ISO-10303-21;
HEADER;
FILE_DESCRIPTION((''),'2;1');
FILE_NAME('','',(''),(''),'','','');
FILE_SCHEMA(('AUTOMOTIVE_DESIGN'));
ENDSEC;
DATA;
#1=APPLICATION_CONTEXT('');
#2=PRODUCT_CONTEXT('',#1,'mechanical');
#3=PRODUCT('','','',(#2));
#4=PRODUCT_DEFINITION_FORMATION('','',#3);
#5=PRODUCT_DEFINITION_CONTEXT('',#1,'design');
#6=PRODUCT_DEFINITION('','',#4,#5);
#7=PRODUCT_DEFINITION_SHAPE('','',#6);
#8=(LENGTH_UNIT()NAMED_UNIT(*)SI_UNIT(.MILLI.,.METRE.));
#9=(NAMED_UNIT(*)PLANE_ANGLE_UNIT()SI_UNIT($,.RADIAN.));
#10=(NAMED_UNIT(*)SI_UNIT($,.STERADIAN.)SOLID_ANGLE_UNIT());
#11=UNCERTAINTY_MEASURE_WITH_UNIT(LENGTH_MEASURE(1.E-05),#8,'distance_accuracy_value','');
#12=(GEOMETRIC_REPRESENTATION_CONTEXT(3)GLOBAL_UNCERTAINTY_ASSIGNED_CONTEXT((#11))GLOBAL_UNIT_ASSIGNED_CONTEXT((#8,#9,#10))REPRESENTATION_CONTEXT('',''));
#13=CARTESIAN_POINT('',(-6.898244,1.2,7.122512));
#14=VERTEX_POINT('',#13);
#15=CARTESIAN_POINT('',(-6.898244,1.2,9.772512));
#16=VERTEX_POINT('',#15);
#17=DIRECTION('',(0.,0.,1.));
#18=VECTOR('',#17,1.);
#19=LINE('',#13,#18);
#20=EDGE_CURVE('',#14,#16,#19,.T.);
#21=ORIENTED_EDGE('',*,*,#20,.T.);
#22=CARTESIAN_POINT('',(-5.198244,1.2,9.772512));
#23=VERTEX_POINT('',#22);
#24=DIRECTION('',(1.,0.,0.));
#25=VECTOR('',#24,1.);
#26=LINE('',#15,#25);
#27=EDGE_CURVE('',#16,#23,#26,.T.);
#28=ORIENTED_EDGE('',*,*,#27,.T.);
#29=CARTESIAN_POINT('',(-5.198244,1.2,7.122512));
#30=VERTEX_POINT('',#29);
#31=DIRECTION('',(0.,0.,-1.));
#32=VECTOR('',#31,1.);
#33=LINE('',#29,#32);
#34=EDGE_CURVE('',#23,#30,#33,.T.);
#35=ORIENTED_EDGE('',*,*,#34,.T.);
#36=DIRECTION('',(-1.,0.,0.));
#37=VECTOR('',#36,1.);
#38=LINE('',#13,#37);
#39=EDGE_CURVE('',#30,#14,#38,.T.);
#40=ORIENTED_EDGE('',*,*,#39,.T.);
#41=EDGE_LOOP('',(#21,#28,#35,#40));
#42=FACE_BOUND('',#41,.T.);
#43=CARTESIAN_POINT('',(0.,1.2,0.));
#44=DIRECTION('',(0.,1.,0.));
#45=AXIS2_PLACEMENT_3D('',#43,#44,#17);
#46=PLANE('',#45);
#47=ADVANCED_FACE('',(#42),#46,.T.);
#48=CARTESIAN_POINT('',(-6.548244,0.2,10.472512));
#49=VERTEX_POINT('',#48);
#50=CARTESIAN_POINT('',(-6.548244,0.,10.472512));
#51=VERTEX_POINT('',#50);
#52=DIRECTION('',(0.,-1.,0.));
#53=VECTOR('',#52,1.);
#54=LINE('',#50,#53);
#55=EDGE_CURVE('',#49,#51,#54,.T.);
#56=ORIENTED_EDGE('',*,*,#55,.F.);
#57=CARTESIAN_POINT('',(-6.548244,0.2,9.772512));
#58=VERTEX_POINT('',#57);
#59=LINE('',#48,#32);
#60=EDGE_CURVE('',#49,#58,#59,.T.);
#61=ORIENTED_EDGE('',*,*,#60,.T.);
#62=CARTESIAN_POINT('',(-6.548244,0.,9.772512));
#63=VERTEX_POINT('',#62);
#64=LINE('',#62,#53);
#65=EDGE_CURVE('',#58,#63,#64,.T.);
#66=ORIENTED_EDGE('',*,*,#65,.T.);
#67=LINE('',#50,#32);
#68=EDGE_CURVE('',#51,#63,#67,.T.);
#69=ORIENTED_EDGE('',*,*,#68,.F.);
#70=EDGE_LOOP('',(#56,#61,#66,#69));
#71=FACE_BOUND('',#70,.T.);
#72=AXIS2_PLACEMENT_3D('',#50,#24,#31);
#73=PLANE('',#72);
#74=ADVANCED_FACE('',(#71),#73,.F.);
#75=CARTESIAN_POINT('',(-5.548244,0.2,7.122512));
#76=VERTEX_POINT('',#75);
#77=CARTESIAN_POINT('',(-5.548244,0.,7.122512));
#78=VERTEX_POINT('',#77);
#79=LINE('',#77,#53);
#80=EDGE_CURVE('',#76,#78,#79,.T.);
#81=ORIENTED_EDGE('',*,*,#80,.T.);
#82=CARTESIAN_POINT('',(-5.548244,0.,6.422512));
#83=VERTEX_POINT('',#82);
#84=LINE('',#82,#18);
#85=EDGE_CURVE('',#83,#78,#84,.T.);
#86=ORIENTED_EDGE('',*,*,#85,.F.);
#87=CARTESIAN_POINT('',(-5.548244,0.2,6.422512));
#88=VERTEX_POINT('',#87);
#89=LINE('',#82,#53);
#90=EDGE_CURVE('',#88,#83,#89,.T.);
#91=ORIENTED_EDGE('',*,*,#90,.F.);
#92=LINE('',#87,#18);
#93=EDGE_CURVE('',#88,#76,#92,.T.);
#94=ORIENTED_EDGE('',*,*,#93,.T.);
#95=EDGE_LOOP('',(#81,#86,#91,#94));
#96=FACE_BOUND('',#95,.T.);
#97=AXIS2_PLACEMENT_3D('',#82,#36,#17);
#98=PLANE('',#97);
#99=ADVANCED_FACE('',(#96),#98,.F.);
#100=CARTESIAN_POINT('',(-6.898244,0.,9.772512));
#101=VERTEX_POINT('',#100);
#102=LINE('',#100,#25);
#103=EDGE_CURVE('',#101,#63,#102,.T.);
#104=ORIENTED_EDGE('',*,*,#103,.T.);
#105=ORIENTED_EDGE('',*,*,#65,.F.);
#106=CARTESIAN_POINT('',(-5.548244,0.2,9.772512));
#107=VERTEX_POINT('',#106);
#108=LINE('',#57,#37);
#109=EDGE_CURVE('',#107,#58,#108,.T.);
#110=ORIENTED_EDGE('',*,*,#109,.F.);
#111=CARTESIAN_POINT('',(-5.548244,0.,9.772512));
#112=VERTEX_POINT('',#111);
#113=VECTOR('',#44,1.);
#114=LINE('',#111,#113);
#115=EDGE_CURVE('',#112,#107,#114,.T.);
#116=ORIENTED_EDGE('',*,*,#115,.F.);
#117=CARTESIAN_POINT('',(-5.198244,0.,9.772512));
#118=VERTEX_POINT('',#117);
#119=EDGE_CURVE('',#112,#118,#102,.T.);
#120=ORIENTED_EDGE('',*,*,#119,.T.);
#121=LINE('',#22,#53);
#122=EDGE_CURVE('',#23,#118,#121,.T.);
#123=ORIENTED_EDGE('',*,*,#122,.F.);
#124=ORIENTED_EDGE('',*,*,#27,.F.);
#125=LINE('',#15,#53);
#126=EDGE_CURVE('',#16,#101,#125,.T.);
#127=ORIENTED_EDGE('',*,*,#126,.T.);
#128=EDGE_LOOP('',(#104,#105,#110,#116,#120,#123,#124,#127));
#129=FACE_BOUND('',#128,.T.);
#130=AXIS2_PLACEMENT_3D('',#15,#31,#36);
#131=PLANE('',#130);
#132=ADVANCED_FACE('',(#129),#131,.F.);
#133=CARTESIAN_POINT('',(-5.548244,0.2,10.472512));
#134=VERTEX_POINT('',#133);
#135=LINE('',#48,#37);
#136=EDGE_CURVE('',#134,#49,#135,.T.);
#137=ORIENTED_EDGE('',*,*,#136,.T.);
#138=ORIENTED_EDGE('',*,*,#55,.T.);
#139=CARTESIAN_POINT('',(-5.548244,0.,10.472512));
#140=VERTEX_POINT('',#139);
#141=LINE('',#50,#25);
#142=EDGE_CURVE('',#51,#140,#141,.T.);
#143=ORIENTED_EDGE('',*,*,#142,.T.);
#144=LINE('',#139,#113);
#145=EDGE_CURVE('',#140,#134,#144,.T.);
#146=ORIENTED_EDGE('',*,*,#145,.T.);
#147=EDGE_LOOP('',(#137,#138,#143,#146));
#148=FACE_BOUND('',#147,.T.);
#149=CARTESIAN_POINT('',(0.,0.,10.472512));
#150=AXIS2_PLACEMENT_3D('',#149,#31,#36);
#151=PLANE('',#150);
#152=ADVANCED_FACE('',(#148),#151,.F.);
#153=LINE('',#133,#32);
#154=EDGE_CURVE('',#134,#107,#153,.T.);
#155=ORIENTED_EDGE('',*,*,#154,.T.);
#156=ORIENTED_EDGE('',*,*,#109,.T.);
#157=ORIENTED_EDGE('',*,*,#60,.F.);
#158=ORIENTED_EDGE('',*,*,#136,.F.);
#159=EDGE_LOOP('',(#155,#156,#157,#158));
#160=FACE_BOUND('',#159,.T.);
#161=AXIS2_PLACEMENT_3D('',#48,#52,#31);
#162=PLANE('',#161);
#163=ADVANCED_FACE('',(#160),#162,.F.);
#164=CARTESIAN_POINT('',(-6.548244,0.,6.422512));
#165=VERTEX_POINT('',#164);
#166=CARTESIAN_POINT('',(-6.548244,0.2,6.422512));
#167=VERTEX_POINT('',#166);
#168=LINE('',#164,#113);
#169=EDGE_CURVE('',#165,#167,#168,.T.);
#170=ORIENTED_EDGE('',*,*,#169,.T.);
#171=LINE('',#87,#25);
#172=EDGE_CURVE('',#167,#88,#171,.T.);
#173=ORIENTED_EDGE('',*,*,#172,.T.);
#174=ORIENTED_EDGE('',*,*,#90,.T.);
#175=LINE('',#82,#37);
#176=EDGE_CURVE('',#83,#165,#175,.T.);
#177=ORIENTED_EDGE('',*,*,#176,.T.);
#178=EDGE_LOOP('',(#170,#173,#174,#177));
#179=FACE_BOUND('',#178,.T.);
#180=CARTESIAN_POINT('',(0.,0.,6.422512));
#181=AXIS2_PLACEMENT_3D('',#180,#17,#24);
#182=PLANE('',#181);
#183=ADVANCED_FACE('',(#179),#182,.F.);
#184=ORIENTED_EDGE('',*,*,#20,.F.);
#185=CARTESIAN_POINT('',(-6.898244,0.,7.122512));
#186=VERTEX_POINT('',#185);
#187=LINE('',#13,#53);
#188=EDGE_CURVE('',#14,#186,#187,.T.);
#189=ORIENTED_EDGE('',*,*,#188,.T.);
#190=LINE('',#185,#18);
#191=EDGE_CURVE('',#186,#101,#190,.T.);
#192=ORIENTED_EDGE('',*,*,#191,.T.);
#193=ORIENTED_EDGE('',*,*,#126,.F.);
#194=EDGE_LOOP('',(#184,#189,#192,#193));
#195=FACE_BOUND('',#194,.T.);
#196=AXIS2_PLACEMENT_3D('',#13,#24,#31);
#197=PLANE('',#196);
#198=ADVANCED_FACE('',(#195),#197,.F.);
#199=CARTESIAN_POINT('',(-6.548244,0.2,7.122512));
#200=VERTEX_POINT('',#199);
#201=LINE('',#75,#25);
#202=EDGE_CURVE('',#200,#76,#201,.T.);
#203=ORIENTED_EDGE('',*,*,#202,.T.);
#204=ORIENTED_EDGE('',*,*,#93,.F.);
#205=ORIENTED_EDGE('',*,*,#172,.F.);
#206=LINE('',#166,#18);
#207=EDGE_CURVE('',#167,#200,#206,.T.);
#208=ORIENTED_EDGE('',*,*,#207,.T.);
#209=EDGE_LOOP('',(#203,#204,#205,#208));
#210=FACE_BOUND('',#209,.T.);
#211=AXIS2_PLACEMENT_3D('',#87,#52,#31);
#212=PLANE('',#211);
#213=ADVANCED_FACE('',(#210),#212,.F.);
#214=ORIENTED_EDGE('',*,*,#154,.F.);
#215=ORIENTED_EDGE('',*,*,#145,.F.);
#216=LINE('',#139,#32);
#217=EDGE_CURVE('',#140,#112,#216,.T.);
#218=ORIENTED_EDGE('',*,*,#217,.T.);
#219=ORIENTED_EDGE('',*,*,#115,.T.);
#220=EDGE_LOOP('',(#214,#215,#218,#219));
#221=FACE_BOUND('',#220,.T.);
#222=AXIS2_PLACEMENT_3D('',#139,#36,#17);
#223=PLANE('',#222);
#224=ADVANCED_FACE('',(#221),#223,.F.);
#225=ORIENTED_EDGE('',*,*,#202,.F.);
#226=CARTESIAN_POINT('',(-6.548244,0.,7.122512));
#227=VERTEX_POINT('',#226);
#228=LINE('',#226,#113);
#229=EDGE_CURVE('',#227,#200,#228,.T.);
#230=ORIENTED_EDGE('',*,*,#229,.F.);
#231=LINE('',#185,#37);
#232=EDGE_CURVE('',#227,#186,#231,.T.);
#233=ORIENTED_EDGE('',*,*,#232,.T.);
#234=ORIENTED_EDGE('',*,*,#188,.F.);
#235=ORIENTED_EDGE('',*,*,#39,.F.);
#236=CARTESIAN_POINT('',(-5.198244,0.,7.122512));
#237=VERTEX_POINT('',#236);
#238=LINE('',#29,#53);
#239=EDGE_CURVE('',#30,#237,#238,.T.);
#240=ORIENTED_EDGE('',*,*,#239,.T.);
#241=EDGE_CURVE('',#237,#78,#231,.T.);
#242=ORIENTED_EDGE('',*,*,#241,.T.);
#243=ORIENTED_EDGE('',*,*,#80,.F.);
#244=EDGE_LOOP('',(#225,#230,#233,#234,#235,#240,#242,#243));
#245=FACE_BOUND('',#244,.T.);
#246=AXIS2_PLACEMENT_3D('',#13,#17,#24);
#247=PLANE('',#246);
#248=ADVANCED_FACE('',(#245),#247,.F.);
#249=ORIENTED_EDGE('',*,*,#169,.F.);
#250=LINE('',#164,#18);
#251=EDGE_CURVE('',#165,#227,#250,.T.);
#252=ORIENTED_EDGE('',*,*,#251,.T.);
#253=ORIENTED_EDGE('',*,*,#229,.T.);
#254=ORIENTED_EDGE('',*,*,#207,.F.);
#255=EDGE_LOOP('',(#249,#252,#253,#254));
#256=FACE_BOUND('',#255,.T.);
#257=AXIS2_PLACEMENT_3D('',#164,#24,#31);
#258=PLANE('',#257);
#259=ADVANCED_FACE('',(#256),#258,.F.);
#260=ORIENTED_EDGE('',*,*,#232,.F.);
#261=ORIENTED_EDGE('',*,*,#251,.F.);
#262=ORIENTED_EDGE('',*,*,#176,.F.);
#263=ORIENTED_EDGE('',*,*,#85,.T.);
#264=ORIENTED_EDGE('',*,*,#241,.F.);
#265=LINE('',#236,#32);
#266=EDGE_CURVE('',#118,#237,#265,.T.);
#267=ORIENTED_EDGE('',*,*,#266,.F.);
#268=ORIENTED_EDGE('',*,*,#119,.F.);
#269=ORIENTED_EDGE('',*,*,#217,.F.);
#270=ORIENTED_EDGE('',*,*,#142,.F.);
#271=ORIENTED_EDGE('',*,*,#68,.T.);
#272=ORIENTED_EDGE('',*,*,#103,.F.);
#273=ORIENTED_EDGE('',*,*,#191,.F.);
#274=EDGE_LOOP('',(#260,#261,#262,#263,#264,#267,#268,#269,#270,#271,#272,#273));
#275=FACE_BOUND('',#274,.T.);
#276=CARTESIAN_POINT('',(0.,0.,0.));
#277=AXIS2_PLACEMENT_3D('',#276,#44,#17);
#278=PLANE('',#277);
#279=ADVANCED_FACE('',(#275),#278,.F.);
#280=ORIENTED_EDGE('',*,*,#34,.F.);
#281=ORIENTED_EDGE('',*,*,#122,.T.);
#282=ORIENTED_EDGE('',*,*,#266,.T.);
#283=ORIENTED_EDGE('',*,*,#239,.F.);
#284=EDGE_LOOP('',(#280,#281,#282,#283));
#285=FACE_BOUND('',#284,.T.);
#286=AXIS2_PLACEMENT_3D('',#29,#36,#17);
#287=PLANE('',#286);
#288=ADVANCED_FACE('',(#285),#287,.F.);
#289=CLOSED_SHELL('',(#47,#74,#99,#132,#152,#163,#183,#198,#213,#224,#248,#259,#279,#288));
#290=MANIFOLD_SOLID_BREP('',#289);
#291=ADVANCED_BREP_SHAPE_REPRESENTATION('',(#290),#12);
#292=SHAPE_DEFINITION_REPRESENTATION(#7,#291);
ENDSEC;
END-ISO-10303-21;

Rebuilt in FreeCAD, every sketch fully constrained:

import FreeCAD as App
import Part
import Sketcher

doc = App.newDocument("Part")
body = doc.addObject("PartDesign::Body", "Body")

# Sketch on XZ plane
sketch1 = body.newObject("Sketcher::SketchObject", "Sketch")
sketch1.AttachmentSupport = (doc.getObject("XZ_Plane"), [""])
sketch1.MapMode = "FlatFace"
sketch1.addGeometry(Part.LineSegment(App.Vector(-6.898244, 7.122512, 0), App.Vector(-6.898244, 9.772512, 0)), False)
sketch1.addGeometry(Part.LineSegment(App.Vector(-6.898244, 9.772512, 0), App.Vector(-5.198244, 9.772512, 0)), False)
sketch1.addGeometry(Part.LineSegment(App.Vector(-5.198244, 9.772512, 0), App.Vector(-5.198244, 7.122512, 0)), False)
sketch1.addGeometry(Part.LineSegment(App.Vector(-5.198244, 7.122512, 0), App.Vector(-6.898244, 7.122512, 0)), False)
sketch1.addConstraint(Sketcher.Constraint("Coincident", 0, 2, 1, 1))
sketch1.addConstraint(Sketcher.Constraint("Coincident", 1, 2, 2, 1))
sketch1.addConstraint(Sketcher.Constraint("Coincident", 2, 2, 3, 1))
sketch1.addConstraint(Sketcher.Constraint("Coincident", 3, 2, 0, 1))
sketch1.addConstraint(Sketcher.Constraint("Vertical", 0))
sketch1.addConstraint(Sketcher.Constraint("Horizontal", 1))
sketch1.addConstraint(Sketcher.Constraint("Vertical", 2))
sketch1.addConstraint(Sketcher.Constraint("Horizontal", 3))
sketch1.addConstraint(Sketcher.Constraint("DistanceX", 1, 1, 1, 2, 1.7))
sketch1.addConstraint(Sketcher.Constraint("DistanceY", 0, 1, 0, 2, 2.65))
sketch1.addConstraint(Sketcher.Constraint("DistanceY", -1, 1, 0, 2, 9.772512))
sketch1.addConstraint(Sketcher.Constraint("DistanceX", 0, 2, -1, 1, 6.898244))
pad1 = body.newObject("PartDesign::Pad", "Pad")
pad1.Profile = sketch1
pad1.Length = 1.2
pad1.Reversed = True

# Sketch on XY plane
sketch2 = body.newObject("Sketcher::SketchObject", "Sketch001")
sketch2.AttachmentSupport = (doc.getObject("XY_Plane"), [""])
sketch2.MapMode = "FlatFace"
sketch2.AttachmentOffset = App.Placement(App.Vector(0, 0, 9.772512), App.Rotation())
sketch2.addGeometry(Part.LineSegment(App.Vector(-6.548244, 0.2, 0), App.Vector(-6.548244, 0, 0)), False)
sketch2.addGeometry(Part.LineSegment(App.Vector(-6.548244, 0, 0), App.Vector(-5.548244, 0, 0)), False)
sketch2.addGeometry(Part.LineSegment(App.Vector(-5.548244, 0, 0), App.Vector(-5.548244, 0.2, 0)), False)
sketch2.addGeometry(Part.LineSegment(App.Vector(-5.548244, 0.2, 0), App.Vector(-6.548244, 0.2, 0)), False)
sketch2.addConstraint(Sketcher.Constraint("Coincident", 0, 2, 1, 1))
sketch2.addConstraint(Sketcher.Constraint("Coincident", 1, 2, 2, 1))
sketch2.addConstraint(Sketcher.Constraint("Coincident", 2, 2, 3, 1))
sketch2.addConstraint(Sketcher.Constraint("Coincident", 3, 2, 0, 1))
sketch2.addConstraint(Sketcher.Constraint("Vertical", 0))
sketch2.addConstraint(Sketcher.Constraint("Horizontal", 1))
sketch2.addConstraint(Sketcher.Constraint("Vertical", 2))
sketch2.addConstraint(Sketcher.Constraint("Horizontal", 3))
sketch2.addConstraint(Sketcher.Constraint("PointOnObject", 0, 2, -1))
sketch2.addConstraint(Sketcher.Constraint("DistanceX", 1, 1, 1, 2, 1.0))
sketch2.addConstraint(Sketcher.Constraint("DistanceY", 0, 2, 0, 1, 0.2))
sketch2.addConstraint(Sketcher.Constraint("DistanceX", 0, 2, -1, 1, 6.548244))
pad2 = body.newObject("PartDesign::Pad", "Pad001")
pad2.Profile = sketch2
pad2.Length = 0.7

# Sketch on XY plane
sketch3 = body.newObject("Sketcher::SketchObject", "Sketch002")
sketch3.AttachmentSupport = (doc.getObject("XY_Plane"), [""])
sketch3.MapMode = "FlatFace"
sketch3.AttachmentOffset = App.Placement(App.Vector(0, 0, 7.122512), App.Rotation())
sketch3.addGeometry(Part.LineSegment(App.Vector(-5.548244, 0.2, 0), App.Vector(-5.548244, 0, 0)), False)
sketch3.addGeometry(Part.LineSegment(App.Vector(-5.548244, 0, 0), App.Vector(-6.548244, 0, 0)), False)
sketch3.addGeometry(Part.LineSegment(App.Vector(-6.548244, 0, 0), App.Vector(-6.548244, 0.2, 0)), False)
sketch3.addGeometry(Part.LineSegment(App.Vector(-6.548244, 0.2, 0), App.Vector(-5.548244, 0.2, 0)), False)
sketch3.addConstraint(Sketcher.Constraint("Coincident", 0, 2, 1, 1))
sketch3.addConstraint(Sketcher.Constraint("Coincident", 1, 2, 2, 1))
sketch3.addConstraint(Sketcher.Constraint("Coincident", 2, 2, 3, 1))
sketch3.addConstraint(Sketcher.Constraint("Coincident", 3, 2, 0, 1))
sketch3.addConstraint(Sketcher.Constraint("Vertical", 0))
sketch3.addConstraint(Sketcher.Constraint("Horizontal", 1))
sketch3.addConstraint(Sketcher.Constraint("Vertical", 2))
sketch3.addConstraint(Sketcher.Constraint("Horizontal", 3))
sketch3.addConstraint(Sketcher.Constraint("PointOnObject", 0, 2, -1))
sketch3.addConstraint(Sketcher.Constraint("DistanceX", 1, 2, 1, 1, 1.0))
sketch3.addConstraint(Sketcher.Constraint("DistanceY", 0, 2, 0, 1, 0.2))
sketch3.addConstraint(Sketcher.Constraint("DistanceX", 0, 2, -1, 1, 5.548244))
pad3 = body.newObject("PartDesign::Pad", "Pad002")
pad3.Profile = sketch3
pad3.Length = 0.7
pad3.Reversed = True

doc.recompute()
